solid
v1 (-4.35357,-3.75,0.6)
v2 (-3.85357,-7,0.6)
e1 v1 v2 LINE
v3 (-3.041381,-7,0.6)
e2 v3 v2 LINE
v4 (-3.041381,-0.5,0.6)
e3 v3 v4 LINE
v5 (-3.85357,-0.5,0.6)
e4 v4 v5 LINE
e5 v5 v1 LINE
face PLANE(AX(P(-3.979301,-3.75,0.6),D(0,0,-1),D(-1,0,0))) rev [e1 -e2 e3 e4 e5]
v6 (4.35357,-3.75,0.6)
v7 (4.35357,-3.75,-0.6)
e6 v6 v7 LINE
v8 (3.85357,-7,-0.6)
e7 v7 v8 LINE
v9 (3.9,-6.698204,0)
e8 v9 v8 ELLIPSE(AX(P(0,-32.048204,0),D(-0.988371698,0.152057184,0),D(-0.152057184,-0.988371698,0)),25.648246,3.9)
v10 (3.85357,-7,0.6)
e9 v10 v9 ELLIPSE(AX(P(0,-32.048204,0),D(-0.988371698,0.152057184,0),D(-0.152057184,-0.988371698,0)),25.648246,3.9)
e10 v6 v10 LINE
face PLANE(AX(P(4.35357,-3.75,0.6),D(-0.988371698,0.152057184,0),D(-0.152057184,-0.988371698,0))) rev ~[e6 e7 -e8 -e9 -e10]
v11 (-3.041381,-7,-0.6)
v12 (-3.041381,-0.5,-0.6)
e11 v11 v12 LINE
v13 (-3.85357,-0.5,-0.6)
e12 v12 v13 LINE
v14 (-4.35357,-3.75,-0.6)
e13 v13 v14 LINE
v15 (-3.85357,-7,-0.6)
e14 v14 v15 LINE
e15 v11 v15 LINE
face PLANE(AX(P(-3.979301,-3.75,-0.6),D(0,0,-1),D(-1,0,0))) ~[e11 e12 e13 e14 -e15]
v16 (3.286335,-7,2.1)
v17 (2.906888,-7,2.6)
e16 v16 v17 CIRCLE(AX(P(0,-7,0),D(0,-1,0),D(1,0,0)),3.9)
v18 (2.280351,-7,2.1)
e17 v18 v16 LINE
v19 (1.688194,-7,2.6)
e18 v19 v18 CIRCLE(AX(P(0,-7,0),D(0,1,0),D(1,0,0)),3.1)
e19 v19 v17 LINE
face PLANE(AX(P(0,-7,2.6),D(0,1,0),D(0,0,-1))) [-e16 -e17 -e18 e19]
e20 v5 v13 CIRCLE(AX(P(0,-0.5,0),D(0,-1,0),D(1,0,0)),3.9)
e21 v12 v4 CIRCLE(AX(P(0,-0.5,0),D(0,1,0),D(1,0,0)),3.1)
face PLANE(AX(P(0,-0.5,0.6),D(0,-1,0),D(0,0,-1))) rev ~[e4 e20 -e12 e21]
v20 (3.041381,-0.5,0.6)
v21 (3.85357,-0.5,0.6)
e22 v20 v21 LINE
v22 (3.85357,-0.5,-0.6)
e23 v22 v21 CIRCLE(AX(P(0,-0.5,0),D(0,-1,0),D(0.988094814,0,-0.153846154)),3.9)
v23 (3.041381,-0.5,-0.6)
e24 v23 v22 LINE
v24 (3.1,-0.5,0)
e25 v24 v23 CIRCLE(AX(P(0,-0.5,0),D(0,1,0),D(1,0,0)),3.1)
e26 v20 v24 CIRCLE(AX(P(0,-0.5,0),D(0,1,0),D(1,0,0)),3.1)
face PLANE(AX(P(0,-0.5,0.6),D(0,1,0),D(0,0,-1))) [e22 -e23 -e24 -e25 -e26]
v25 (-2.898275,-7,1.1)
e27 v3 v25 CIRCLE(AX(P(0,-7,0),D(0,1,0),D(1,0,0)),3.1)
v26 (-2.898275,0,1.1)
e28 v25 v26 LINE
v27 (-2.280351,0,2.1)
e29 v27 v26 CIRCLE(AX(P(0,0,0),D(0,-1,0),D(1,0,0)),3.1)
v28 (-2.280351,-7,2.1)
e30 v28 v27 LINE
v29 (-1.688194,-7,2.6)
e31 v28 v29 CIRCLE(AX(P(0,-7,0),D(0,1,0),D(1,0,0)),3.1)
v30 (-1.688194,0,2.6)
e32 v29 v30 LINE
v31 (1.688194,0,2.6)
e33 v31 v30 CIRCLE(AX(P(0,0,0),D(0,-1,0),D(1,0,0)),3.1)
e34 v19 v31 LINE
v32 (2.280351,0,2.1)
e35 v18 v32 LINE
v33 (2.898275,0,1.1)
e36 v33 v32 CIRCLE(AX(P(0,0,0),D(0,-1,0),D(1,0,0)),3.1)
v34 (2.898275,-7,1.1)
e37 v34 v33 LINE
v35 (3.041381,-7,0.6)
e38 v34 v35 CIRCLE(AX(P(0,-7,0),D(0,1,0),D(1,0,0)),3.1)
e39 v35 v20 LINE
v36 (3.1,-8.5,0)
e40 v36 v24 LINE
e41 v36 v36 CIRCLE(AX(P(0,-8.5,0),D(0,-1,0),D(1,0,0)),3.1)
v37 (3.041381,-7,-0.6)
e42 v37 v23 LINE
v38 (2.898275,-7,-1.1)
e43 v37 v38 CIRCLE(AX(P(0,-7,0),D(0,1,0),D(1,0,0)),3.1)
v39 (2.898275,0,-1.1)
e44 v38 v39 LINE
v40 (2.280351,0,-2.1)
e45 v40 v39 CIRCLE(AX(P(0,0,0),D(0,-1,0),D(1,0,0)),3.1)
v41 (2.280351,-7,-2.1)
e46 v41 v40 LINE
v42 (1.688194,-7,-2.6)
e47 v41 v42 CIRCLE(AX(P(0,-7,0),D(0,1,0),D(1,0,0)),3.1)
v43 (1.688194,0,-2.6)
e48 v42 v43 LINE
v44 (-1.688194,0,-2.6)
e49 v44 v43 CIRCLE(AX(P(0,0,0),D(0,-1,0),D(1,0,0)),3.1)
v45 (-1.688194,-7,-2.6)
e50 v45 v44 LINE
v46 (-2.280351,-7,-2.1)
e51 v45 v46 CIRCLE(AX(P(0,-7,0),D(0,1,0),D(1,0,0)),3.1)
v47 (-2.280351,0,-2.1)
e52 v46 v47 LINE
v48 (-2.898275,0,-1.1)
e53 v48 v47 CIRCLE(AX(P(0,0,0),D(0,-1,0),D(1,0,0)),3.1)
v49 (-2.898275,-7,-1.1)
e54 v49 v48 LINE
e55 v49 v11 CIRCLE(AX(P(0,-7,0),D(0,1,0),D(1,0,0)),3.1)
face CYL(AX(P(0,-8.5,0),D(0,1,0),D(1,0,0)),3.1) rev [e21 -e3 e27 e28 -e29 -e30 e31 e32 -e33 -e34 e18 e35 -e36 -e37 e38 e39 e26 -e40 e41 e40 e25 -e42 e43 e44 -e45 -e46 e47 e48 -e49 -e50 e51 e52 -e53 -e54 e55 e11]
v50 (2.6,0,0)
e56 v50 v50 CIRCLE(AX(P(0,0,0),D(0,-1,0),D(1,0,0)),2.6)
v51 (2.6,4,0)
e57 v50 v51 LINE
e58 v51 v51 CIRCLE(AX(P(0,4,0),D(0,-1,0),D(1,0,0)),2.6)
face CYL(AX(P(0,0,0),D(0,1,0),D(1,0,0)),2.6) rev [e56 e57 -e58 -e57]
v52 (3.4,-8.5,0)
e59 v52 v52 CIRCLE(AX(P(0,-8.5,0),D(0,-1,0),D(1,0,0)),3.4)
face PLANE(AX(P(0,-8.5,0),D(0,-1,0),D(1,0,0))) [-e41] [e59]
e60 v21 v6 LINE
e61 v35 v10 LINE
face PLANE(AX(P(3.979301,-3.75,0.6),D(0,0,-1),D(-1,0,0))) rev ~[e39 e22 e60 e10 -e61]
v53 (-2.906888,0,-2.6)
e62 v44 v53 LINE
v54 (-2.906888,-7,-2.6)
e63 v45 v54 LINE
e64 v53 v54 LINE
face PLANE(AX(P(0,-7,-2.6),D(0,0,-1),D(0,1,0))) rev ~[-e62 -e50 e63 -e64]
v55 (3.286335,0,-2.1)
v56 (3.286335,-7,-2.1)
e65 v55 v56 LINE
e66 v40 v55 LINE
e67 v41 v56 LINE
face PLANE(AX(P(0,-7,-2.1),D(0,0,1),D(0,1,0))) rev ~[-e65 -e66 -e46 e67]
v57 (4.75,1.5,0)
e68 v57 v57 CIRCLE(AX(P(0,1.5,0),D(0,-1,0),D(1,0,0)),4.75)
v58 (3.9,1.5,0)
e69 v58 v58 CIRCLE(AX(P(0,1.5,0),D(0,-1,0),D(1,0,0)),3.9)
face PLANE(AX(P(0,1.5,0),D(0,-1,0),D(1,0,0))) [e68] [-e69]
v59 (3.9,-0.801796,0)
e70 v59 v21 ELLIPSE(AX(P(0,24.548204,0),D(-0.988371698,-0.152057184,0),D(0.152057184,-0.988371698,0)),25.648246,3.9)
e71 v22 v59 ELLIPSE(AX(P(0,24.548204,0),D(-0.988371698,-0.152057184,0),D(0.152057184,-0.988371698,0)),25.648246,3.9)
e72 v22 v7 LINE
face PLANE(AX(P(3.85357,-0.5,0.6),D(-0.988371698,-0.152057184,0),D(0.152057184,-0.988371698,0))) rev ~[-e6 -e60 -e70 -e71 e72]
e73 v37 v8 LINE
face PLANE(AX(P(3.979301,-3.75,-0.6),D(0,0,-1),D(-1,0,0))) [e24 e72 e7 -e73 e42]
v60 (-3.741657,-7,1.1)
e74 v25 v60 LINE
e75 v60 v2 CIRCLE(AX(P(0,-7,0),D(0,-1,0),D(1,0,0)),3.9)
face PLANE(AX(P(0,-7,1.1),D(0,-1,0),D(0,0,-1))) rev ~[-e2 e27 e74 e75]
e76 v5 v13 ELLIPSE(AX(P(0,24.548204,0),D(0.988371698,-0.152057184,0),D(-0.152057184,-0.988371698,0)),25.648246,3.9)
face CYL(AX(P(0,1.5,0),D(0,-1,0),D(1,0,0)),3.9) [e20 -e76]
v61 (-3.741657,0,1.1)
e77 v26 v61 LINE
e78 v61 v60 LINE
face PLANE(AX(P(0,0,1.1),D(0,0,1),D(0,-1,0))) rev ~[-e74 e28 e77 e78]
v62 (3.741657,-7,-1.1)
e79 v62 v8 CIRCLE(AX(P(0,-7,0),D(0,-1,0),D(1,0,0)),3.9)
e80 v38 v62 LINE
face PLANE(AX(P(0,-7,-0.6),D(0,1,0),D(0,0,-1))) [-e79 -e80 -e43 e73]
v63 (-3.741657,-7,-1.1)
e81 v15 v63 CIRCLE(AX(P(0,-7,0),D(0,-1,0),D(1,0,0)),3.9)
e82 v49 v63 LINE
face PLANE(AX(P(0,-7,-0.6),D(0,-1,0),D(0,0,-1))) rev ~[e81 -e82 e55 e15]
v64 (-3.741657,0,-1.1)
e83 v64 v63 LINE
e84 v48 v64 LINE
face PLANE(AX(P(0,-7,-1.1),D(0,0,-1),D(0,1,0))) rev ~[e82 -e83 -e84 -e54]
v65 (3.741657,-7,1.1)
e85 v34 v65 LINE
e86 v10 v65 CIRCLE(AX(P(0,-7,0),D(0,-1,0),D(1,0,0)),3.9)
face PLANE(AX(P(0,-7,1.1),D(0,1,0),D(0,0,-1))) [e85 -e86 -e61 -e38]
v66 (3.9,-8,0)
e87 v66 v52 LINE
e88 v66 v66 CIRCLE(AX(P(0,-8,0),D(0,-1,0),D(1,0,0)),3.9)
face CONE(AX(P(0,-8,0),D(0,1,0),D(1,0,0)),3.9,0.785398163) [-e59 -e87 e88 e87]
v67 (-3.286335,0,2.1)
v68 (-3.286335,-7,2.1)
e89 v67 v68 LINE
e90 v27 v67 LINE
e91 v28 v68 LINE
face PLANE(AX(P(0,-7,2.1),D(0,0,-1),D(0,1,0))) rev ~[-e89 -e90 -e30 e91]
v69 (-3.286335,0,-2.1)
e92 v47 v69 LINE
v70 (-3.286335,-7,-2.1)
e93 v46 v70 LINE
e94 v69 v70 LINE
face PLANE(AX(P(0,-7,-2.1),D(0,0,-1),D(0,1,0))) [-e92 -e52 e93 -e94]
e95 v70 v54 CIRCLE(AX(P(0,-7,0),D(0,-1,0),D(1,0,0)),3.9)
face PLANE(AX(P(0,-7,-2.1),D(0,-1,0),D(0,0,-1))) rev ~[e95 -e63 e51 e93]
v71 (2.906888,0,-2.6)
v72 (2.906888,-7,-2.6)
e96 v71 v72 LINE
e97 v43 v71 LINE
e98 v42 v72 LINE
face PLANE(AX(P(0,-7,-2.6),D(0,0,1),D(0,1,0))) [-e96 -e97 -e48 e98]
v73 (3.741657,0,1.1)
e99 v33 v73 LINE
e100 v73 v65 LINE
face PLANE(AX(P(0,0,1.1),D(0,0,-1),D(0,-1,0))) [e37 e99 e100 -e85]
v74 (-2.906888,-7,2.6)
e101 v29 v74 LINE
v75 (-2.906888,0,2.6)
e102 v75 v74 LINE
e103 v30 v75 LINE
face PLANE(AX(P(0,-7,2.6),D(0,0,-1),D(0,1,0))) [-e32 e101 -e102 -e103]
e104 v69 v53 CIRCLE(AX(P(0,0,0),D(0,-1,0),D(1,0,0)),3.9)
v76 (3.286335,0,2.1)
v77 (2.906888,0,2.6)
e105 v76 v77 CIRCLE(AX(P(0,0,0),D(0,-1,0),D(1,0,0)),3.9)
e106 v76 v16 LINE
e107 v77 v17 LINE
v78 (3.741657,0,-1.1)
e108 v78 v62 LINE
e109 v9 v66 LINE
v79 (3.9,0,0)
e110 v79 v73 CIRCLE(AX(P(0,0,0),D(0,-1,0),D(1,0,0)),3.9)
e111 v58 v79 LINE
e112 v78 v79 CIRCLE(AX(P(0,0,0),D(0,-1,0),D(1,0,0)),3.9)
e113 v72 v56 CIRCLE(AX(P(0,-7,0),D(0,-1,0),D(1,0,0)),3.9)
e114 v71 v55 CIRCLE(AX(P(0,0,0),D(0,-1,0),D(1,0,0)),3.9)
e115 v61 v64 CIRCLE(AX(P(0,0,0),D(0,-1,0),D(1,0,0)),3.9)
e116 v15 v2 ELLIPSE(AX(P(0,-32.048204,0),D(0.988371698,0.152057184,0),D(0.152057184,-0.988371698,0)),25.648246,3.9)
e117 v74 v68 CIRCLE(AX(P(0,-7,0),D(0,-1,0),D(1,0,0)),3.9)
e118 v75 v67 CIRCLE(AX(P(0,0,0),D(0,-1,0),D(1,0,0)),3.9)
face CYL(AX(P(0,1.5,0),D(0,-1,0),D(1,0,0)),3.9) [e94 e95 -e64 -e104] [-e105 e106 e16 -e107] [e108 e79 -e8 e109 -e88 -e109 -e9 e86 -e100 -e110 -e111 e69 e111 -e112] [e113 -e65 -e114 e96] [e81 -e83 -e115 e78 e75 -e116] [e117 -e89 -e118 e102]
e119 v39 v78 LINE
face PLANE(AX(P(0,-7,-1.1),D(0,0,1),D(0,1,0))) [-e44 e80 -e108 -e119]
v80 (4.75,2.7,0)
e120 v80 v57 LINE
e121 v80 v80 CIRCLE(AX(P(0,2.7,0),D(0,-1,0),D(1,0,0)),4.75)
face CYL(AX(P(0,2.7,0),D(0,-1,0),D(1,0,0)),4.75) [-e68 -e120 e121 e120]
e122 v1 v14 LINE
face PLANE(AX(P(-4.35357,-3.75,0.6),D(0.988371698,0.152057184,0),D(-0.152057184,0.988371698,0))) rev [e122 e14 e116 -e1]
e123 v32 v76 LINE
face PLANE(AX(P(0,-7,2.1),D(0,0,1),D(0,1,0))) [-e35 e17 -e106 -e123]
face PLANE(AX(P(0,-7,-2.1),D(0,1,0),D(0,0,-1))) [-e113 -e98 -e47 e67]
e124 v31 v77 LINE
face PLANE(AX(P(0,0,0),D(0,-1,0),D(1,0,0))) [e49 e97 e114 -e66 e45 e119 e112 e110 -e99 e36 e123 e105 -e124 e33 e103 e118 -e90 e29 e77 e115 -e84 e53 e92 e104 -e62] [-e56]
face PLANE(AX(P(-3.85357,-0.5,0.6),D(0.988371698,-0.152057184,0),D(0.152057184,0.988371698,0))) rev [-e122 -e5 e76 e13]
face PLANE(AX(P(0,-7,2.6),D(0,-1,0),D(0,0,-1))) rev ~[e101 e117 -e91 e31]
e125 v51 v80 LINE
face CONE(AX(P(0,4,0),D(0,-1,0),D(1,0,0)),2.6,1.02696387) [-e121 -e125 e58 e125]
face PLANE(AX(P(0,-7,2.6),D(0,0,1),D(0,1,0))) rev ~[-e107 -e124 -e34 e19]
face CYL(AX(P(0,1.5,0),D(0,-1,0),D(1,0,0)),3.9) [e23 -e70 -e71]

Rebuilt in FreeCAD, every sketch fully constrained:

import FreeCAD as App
import Part
import Sketcher

V = App.Vector


def edges_at(feature, points):
    """Names of the edges that pass closest to the given points."""
    edges = feature.Shape.Edges
    near = lambda p: min(range(len(edges)), key=lambda i: edges[i].distToShape(Part.Vertex(*p))[0])
    return sorted({f"Edge{near(p) + 1}" for p in points})

doc = App.newDocument("Part")
body = doc.addObject("PartDesign::Body", "Body")

# Sketch on XY plane
sketch1 = body.newObject("Sketcher::SketchObject", "Sketch")
sketch1.AttachmentSupport = (doc.getObject("XY_Plane"), [""])
sketch1.MapMode = "FlatFace"
sketch1.addGeometry([
    Part.LineSegment(V(2.6, 4, 0), V(2.6, 0, 0)),  # 0
    Part.LineSegment(V(2.6, 0, 0), V(3.1, 0, 0)),  # 1
    Part.LineSegment(V(3.1, 0, 0), V(3.1, -8.5, 0)),  # 2
    Part.LineSegment(V(3.1, -8.5, 0), V(3.9, -8.5, 0)),  # 3
    Part.LineSegment(V(3.9, -8.5, 0), V(3.9, 1.5, 0)),  # 4
    Part.LineSegment(V(3.9, 1.5, 0), V(4.75, 1.5, 0)),  # 5
    Part.LineSegment(V(4.75, 1.5, 0), V(4.75, 2.7, 0)),  # 6
    Part.LineSegment(V(4.75, 2.7, 0), V(2.6, 4, 0)),  # 7
], False)
sketch1.addConstraint([
    Sketcher.Constraint("Coincident", 0, 2, 1, 1),
    Sketcher.Constraint("Coincident", 1, 2, 2, 1),
    Sketcher.Constraint("Coincident", 2, 2, 3, 1),
    Sketcher.Constraint("Coincident", 3, 2, 4, 1),
    Sketcher.Constraint("Coincident", 4, 2, 5, 1),
    Sketcher.Constraint("Coincident", 5, 2, 6, 1),
    Sketcher.Constraint("Coincident", 6, 2, 7, 1),
    Sketcher.Constraint("Coincident", 7, 2, 0, 1),
    Sketcher.Constraint("Vertical", 0),
    Sketcher.Constraint("Horizontal", 1),
    Sketcher.Constraint("Vertical", 2),
    Sketcher.Constraint("Horizontal", 3),
    Sketcher.Constraint("Vertical", 4),
    Sketcher.Constraint("Horizontal", 5),
    Sketcher.Constraint("Vertical", 6),
    Sketcher.Constraint("PointOnObject", 0, 2, -1),
    Sketcher.Constraint("DistanceY", 0, 2, 0, 1, 4.0),
    Sketcher.Constraint("DistanceY", 4, 1, 4, 2, 10.0),
    Sketcher.Constraint("DistanceX", 1, 1, 1, 2, 0.5),
    Sketcher.Constraint("DistanceX", 3, 1, 3, 2, 0.8),
    Sketcher.Constraint("DistanceY", 2, 2, 2, 1, 8.5),
    Sketcher.Constraint("DistanceY", 6, 1, 6, 2, 1.2),
    Sketcher.Constraint("DistanceX", 5, 1, 5, 2, 0.85),
    Sketcher.Constraint("DistanceX", -1, 1, 0, 2, 2.6),
])
revolution = body.newObject("PartDesign::Revolution", "Revolution")
revolution.Profile = sketch1
revolution.ReferenceAxis = (sketch1, ["V_Axis"])
revolution.Angle = 360

# Sketch on YZ plane
sketch2 = body.newObject("Sketcher::SketchObject", "Sketch001")
sketch2.AttachmentSupport = (doc.getObject("YZ_Plane"), [""])
sketch2.MapMode = "FlatFace"
sketch2.addGeometry([
    Part.LineSegment(V(-7, -0.6, 0), V(-7, -1.1, 0)),  # 0
    Part.LineSegment(V(-7, -1.1, 0), V(0, -1.1, 0)),  # 1
    Part.LineSegment(V(0, -1.1, 0), V(0, 1.1, 0)),  # 2
    Part.LineSegment(V(0, 1.1, 0), V(-7, 1.1, 0)),  # 3
    Part.LineSegment(V(-7, 1.1, 0), V(-7, 0.6, 0)),  # 4
    Part.LineSegment(V(-7, 0.6, 0), V(-0.5, 0.6, 0)),  # 5
    Part.LineSegment(V(-0.5, 0.6, 0), V(-0.5, -0.6, 0)),  # 6
    Part.LineSegment(V(-0.5, -0.6, 0), V(-7, -0.6, 0)),  # 7
    Part.LineSegment(V(0, 2.6, 0), V(-7, 2.6, 0)),  # 8
    Part.LineSegment(V(-7, 2.6, 0), V(-7, 2.1, 0)),  # 9
    Part.LineSegment(V(-7, 2.1, 0), V(0, 2.1, 0)),  # 10
    Part.LineSegment(V(0, 2.1, 0), V(0, 2.6, 0)),  # 11
    Part.LineSegment(V(0, -2.1, 0), V(-7, -2.1, 0)),  # 12
    Part.LineSegment(V(-7, -2.1, 0), V(-7, -2.6, 0)),  # 13
    Part.LineSegment(V(-7, -2.6, 0), V(0, -2.6, 0)),  # 14
    Part.LineSegment(V(0, -2.6, 0), V(0, -2.1, 0)),  # 15
], False)
sketch2.addConstraint([
    Sketcher.Constraint("Coincident", 0, 2, 1, 1),
    Sketcher.Constraint("Coincident", 1, 2, 2, 1),
    Sketcher.Constraint("Coincident", 2, 2, 3, 1),
    Sketcher.Constraint("Coincident", 3, 2, 4, 1),
    Sketcher.Constraint("Coincident", 4, 2, 5, 1),
    Sketcher.Constraint("Coincident", 5, 2, 6, 1),
    Sketcher.Constraint("Coincident", 6, 2, 7, 1),
    Sketcher.Constraint("Coincident", 7, 2, 0, 1),
    Sketcher.Constraint("Coincident", 8, 2, 9, 1),
    Sketcher.Constraint("Coincident", 9, 2, 10, 1),
    Sketcher.Constraint("Coincident", 10, 2, 11, 1),
    Sketcher.Constraint("Coincident", 11, 2, 8, 1),
    Sketcher.Constraint("Coincident", 12, 2, 13, 1),
    Sketcher.Constraint("Coincident", 13, 2, 14, 1),
    Sketcher.Constraint("Coincident", 14, 2, 15, 1),
    Sketcher.Constraint("Coincident", 15, 2, 12, 1),
    Sketcher.Constraint("Vertical", 0),
    Sketcher.Constraint("Horizontal", 1),
    Sketcher.Constraint("Vertical", 2),
    Sketcher.Constraint("Horizontal", 3),
    Sketcher.Constraint("Vertical", 4),
    Sketcher.Constraint("Horizontal", 5),
    Sketcher.Constraint("Vertical", 6),
    Sketcher.Constraint("Horizontal", 7),
    Sketcher.Constraint("Horizontal", 8),
    Sketcher.Constraint("Vertical", 9),
    Sketcher.Constraint("Horizontal", 10),
    Sketcher.Constraint("Vertical", 11),
    Sketcher.Constraint("Horizontal", 12),
    Sketcher.Constraint("Vertical", 13),
    Sketcher.Constraint("Horizontal", 14),
    Sketcher.Constraint("Vertical", 15),
    Sketcher.Constraint("Symmetric", 1, 2, 2, 2, -1, 1),
    Sketcher.Constraint("Symmetric", 11, 2, 14, 2, -1, 1),
    Sketcher.Constraint("Symmetric", 4, 2, 7, 2, -1),
    Sketcher.Constraint("Symmetric", 9, 2, 12, 2, -1),
    Sketcher.Constraint("PointOnObject", 10, 2, -2),
    Sketcher.Constraint("Vertical", 7, 2, 8, 2),
    Sketcher.Constraint("Equal", 4, 9),
    Sketcher.Constraint("DistanceX", 1, 1, 1, 2, 7.0),
    Sketcher.Constraint("DistanceX", 5, 1, 5, 2, 6.5),
    Sketcher.Constraint("DistanceY", 0, 2, 0, 1, 0.5),
    Sketcher.Constraint("DistanceY", 2, 1, 2, 2, 2.2),
    Sketcher.Constraint("DistanceY", 4, 2, 8, 2, 2.0),
])
pocket1 = body.newObject("PartDesign::Pocket", "Pocket")
pocket1.Profile = sketch2
pocket1.Type = "ThroughAll"
pocket1.Midplane = True

# Sketch on XY plane
sketch3 = body.newObject("Sketcher::SketchObject", "Sketch002")
sketch3.AttachmentSupport = (doc.getObject("XY_Plane"), [""])
sketch3.MapMode = "FlatFace"
sketch3.AttachmentOffset = App.Placement(V(0, 0, 0.6), App.Rotation())
sketch3.addGeometry([
    Part.LineSegment(V(4.35357, -3.75, 0), V(3.85357, -0.5, 0)),
    Part.LineSegment(V(3.85357, -0.5, 0), V(3.85357, -7, 0)),
    Part.LineSegment(V(3.85357, -7, 0), V(4.35357, -3.75, 0)),
], False)
sketch3.addConstraint([
    Sketcher.Constraint("Coincident", 0, 2, 1, 1),
    Sketcher.Constraint("Coincident", 1, 2, 2, 1),
    Sketcher.Constraint("Coincident", 2, 2, 0, 1),
    Sketcher.Constraint("Vertical", 1),
    Sketcher.Constraint("Equal", 0, 2),
    Sketcher.Constraint("DistanceY", 1, 2, 1, 1, 6.5),
    Sketcher.Constraint("DistanceY", 1, 2, -1, 1, 7.0),
    Sketcher.Constraint("DistanceX", 0, 2, 2, 2, 0.5),
    Sketcher.Constraint("DistanceX", -1, 1, 0, 2, 3.85357),
])
pad1 = body.newObject("PartDesign::Pad", "Pad")
pad1.Profile = sketch3
pad1.Length = 1.2
pad1.Reversed = True
doc.recompute()

mirrored = body.newObject("PartDesign::Mirrored", "Mirrored")
mirrored.Originals = [pad1]
mirrored.MirrorPlane = (doc.getObject("YZ_Plane"), [""])
body.Tip = mirrored
doc.recompute()

chamfer = body.newObject("PartDesign::Chamfer", "Chamfer")
chamfer.Base = (mirrored, edges_at(mirrored, [(-3.9, -8.5, 0)]))
chamfer.Size = 0.5

doc.recompute()
